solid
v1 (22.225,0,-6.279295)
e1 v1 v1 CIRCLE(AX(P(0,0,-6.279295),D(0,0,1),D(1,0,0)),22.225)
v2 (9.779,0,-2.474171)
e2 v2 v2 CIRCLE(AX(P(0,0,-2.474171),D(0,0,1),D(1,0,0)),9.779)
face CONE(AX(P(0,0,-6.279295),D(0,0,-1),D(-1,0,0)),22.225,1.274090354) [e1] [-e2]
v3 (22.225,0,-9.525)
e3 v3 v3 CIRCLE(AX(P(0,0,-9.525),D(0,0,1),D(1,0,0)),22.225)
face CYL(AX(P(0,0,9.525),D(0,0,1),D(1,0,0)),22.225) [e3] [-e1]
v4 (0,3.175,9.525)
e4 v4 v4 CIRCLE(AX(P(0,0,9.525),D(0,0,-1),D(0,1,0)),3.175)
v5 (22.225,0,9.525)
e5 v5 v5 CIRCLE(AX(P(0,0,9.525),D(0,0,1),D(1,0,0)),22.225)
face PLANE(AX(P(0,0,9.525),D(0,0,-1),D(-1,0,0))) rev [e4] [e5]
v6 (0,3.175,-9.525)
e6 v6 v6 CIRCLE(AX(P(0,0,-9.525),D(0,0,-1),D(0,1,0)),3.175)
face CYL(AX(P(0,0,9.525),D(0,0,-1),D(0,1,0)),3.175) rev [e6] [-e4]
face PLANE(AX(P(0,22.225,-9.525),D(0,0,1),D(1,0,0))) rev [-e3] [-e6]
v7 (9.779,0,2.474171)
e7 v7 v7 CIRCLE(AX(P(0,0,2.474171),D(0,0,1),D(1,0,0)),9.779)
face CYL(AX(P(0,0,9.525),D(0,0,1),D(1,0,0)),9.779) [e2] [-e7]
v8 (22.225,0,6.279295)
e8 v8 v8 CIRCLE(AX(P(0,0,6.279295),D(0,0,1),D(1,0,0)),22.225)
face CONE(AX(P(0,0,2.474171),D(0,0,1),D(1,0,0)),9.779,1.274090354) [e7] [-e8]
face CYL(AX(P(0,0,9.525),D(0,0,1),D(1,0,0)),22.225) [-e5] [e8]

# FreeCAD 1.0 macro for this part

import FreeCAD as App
import Part
import Sketcher

V = App.Vector
Q = App.Units.Quantity

doc = App.newDocument("Part")
body = doc.addObject("PartDesign::Body", "Body")

# Sketch on YZ plane
sketch1 = body.newObject("Sketcher::SketchObject", "Sketch")
sketch1.AttachmentSupport = (doc.getObject("YZ_Plane"), [""])
sketch1.MapMode = "FlatFace"
sketch1.addGeometry([
    Part.LineSegment(V(22.225, -9.525, 0), V(22.225, -6.279295, 0)),  # 0
    Part.LineSegment(V(22.225, -6.279295, 0), V(9.779, -2.474171, 0)),  # 1
    Part.LineSegment(V(9.779, -2.474171, 0), V(9.779, 2.474171, 0)),  # 2
    Part.LineSegment(V(9.779, 2.474171, 0), V(22.225, 6.279295, 0)),  # 3
    Part.LineSegment(V(22.225, 6.279295, 0), V(22.225, 9.525, 0)),  # 4
    Part.LineSegment(V(22.225, 9.525, 0), V(0, 9.525, 0)),  # 5
    Part.LineSegment(V(0, 9.525, 0), V(0, -9.525, 0)),  # 6
    Part.LineSegment(V(0, -9.525, 0), V(22.225, -9.525, 0)),  # 7
], False)
sketch1.addConstraint([
    Sketcher.Constraint("Coincident", 0, 2, 1, 1),
    Sketcher.Constraint("Coincident", 1, 2, 2, 1),
    Sketcher.Constraint("Coincident", 2, 2, 3, 1),
    Sketcher.Constraint("Coincident", 3, 2, 4, 1),
    Sketcher.Constraint("Coincident", 4, 2, 5, 1),
    Sketcher.Constraint("Coincident", 5, 2, 6, 1),
    Sketcher.Constraint("Coincident", 6, 2, 7, 1),
    Sketcher.Constraint("Coincident", 7, 2, 0, 1),
    Sketcher.Constraint("Vertical", 0),
    Sketcher.Constraint("Vertical", 2),
    Sketcher.Constraint("Vertical", 4),
    Sketcher.Constraint("Horizontal", 5),
    Sketcher.Constraint("Vertical", 6),
    Sketcher.Constraint("Horizontal", 7),
    Sketcher.Constraint("Symmetric", 5, 2, 6, 2, -1, 1),
    Sketcher.Constraint("Symmetric", 0, 2, 3, 2, -1),
    Sketcher.Constraint("Equal", 1, 3),
    Sketcher.Constraint("Angle", 1, Q("163 deg")),
    Sketcher.Constraint("DistanceY", 6, 2, 6, 1, Q("0.75 in")),
    Sketcher.Constraint("DistanceX", 5, 2, 5, 1, Q("0.875 in")),
    Sketcher.Constraint("DistanceX", 1, 2, 0, 2, Q("0.49 in")),
    Sketcher.Constraint("DistanceY", 2, 1, 2, 2, 4.948342),
])
revolution = body.newObject("PartDesign::Revolution", "Revolution")
revolution.Profile = sketch1
revolution.ReferenceAxis = (sketch1, ["V_Axis"])
revolution.Angle = 360

# Sketch on XY plane
sketch2 = body.newObject("Sketcher::SketchObject", "Sketch001")
sketch2.AttachmentSupport = (doc.getObject("XY_Plane"), [""])
sketch2.MapMode = "FlatFace"
sketch2.AttachmentOffset = App.Placement(V(0, 0, -0.375 * 25.4), App.Rotation())
sketch2.addGeometry(Part.Circle(V(0, 0, 0), V(0, 0, 1), 3.175), False)
sketch2.addConstraint([
    Sketcher.Constraint("Coincident", 0, 3, -1, 1),
    Sketcher.Constraint("Diameter", 0, Q("0.25 in")),
])
pocket1 = body.newObject("PartDesign::Pocket", "Pocket")
pocket1.Profile = sketch2
pocket1.Length = Q("0.75 in")
pocket1.Reversed = True

doc.recompute()
